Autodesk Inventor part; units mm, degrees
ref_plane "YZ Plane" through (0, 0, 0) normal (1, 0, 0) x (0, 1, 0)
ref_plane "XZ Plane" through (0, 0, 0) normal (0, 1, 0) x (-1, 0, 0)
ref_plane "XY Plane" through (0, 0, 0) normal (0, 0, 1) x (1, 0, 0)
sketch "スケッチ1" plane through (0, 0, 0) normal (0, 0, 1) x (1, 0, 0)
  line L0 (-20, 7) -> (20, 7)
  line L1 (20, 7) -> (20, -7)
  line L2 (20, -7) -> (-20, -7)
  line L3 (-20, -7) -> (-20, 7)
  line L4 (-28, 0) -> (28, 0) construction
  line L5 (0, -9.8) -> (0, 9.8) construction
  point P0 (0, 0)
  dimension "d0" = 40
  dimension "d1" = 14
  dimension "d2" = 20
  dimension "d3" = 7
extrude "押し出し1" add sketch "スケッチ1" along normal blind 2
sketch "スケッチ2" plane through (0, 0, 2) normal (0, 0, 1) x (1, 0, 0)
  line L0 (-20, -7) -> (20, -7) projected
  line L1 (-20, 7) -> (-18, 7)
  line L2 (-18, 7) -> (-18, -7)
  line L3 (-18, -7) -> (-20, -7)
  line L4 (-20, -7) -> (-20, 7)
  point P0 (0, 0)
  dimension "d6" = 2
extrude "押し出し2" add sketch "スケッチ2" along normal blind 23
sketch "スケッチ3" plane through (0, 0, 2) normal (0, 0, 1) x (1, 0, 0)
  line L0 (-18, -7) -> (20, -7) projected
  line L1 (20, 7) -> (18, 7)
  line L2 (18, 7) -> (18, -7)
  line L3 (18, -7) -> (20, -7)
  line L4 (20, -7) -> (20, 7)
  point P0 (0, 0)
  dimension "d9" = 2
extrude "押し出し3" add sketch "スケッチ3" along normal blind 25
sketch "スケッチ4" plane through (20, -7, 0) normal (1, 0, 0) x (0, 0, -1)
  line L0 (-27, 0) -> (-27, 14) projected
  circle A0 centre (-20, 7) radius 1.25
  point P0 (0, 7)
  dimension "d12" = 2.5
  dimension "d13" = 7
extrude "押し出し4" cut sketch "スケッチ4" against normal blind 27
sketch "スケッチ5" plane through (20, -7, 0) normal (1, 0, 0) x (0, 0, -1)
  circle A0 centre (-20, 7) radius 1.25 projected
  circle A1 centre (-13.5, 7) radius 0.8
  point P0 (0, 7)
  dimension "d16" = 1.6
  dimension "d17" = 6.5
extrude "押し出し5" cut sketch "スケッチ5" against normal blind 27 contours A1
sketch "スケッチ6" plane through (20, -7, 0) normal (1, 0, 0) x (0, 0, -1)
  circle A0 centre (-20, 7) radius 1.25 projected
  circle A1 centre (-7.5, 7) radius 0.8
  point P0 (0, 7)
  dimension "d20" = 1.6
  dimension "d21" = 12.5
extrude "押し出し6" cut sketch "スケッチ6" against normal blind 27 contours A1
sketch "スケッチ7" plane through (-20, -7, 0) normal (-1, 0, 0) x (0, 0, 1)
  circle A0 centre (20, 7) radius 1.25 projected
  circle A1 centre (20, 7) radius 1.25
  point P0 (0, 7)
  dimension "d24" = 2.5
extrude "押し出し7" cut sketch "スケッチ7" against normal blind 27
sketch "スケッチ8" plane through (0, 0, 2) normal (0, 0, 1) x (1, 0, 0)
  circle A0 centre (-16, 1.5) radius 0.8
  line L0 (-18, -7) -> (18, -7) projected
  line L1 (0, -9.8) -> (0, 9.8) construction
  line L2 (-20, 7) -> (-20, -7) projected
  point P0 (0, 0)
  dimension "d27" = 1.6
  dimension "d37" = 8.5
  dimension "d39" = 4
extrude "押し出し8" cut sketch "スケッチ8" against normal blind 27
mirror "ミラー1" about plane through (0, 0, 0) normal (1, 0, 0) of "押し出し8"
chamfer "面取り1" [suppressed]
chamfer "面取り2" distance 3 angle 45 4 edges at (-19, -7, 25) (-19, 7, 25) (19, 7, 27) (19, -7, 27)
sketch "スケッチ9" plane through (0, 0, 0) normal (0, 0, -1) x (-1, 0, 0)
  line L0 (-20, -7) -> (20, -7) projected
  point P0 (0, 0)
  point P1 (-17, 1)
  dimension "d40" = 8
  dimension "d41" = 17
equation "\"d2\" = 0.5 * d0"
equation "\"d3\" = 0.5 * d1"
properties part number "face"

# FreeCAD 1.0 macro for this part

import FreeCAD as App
import Part
import Sketcher
from FreeCAD import Vector


def edges_at(feature, points):
    """Names of the edges that pass closest to the given points."""
    edges = feature.Shape.Edges
    near = lambda p: min(range(len(edges)), key=lambda i: edges[i].distToShape(Part.Vertex(*p))[0])
    return sorted({f"Edge{near(p) + 1}" for p in points})

doc = App.newDocument("Part")
body = doc.addObject("PartDesign::Body", "Body")

# Sketch on XY plane
sketch1 = body.newObject("Sketcher::SketchObject", "Sketch")
sketch1.AttachmentSupport = (doc.getObject("XY_Plane"), [""])
sketch1.MapMode = "FlatFace"
sketch1.addGeometry([
    Part.LineSegment(Vector(20, 7, 0), Vector(-20, 7, 0)),
    Part.LineSegment(Vector(-20, 7, 0), Vector(-20, -7, 0)),
    Part.LineSegment(Vector(-20, -7, 0), Vector(20, -7, 0)),
    Part.LineSegment(Vector(20, -7, 0), Vector(20, 7, 0)),
], False)
sketch1.addConstraint([
    Sketcher.Constraint("Coincident", 0, 2, 1, 1),
    Sketcher.Constraint("Coincident", 1, 2, 2, 1),
    Sketcher.Constraint("Coincident", 2, 2, 3, 1),
    Sketcher.Constraint("Coincident", 3, 2, 0, 1),
    Sketcher.Constraint("Horizontal", 0),
    Sketcher.Constraint("Vertical", 1),
    Sketcher.Constraint("Horizontal", 2),
    Sketcher.Constraint("Vertical", 3),
    Sketcher.Constraint("Symmetric", 0, 2, 2, 2, -1, 1),
    Sketcher.Constraint("DistanceX", 0, 2, 0, 1, 40.0),
    Sketcher.Constraint("DistanceY", 1, 2, 1, 1, 14.0),
])
pad1 = body.newObject("PartDesign::Pad", "Pad")
pad1.Profile = sketch1
pad1.Length = 2

# Sketch on XY plane
sketch2 = body.newObject("Sketcher::SketchObject", "Sketch001")
sketch2.AttachmentSupport = (doc.getObject("XY_Plane"), [""])
sketch2.MapMode = "FlatFace"
sketch2.AttachmentOffset = App.Placement(Vector(0, 0, 2), App.Rotation())
sketch2.addGeometry([
    Part.LineSegment(Vector(-20, 7, 0), Vector(-20, -7, 0)),
    Part.LineSegment(Vector(-20, -7, 0), Vector(-18, -7, 0)),
    Part.LineSegment(Vector(-18, -7, 0), Vector(-18, 7, 0)),
    Part.LineSegment(Vector(-18, 7, 0), Vector(-20, 7, 0)),
], False)
sketch2.addConstraint([
    Sketcher.Constraint("Coincident", 0, 2, 1, 1),
    Sketcher.Constraint("Coincident", 1, 2, 2, 1),
    Sketcher.Constraint("Coincident", 2, 2, 3, 1),
    Sketcher.Constraint("Coincident", 3, 2, 0, 1),
    Sketcher.Constraint("Vertical", 0),
    Sketcher.Constraint("Horizontal", 1),
    Sketcher.Constraint("Vertical", 2),
    Sketcher.Constraint("Horizontal", 3),
    Sketcher.Constraint("DistanceX", 1, 1, 1, 2, 2.0),
    Sketcher.Constraint("DistanceY", 0, 2, 0, 1, 14.0),
    Sketcher.Constraint("DistanceX", 0, 2, -1, 1, 20.0),
    Sketcher.Constraint("DistanceY", 0, 2, -1, 1, 7.0),
])
pad2 = body.newObject("PartDesign::Pad", "Pad001")
pad2.Profile = sketch2
pad2.Length = 23

# Sketch on XY plane
sketch3 = body.newObject("Sketcher::SketchObject", "Sketch002")
sketch3.AttachmentSupport = (doc.getObject("XY_Plane"), [""])
sketch3.MapMode = "FlatFace"
sketch3.AttachmentOffset = App.Placement(Vector(0, 0, 2), App.Rotation())
sketch3.addGeometry([
    Part.LineSegment(Vector(18, 7, 0), Vector(18, -7, 0)),
    Part.LineSegment(Vector(18, -7, 0), Vector(20, -7, 0)),
    Part.LineSegment(Vector(20, -7, 0), Vector(20, 7, 0)),
    Part.LineSegment(Vector(20, 7, 0), Vector(18, 7, 0)),
], False)
sketch3.addConstraint([
    Sketcher.Constraint("Coincident", 0, 2, 1, 1),
    Sketcher.Constraint("Coincident", 1, 2, 2, 1),
    Sketcher.Constraint("Coincident", 2, 2, 3, 1),
    Sketcher.Constraint("Coincident", 3, 2, 0, 1),
    Sketcher.Constraint("Vertical", 0),
    Sketcher.Constraint("Horizontal", 1),
    Sketcher.Constraint("Vertical", 2),
    Sketcher.Constraint("Horizontal", 3),
    Sketcher.Constraint("DistanceX", 1, 1, 1, 2, 2.0),
    Sketcher.Constraint("DistanceY", 0, 2, 0, 1, 14.0),
    Sketcher.Constraint("DistanceX", -1, 1, 0, 2, 18.0),
    Sketcher.Constraint("DistanceY", 0, 2, -1, 1, 7.0),
])
pad3 = body.newObject("PartDesign::Pad", "Pad002")
pad3.Profile = sketch3
pad3.Length = 25

# Sketch on YZ plane
sketch4 = body.newObject("Sketcher::SketchObject", "Sketch003")
sketch4.AttachmentSupport = (doc.getObject("YZ_Plane"), [""])
sketch4.MapMode = "FlatFace"
sketch4.AttachmentOffset = App.Placement(Vector(0, 0, 20), App.Rotation())
sketch4.addGeometry(Part.Circle(Vector(0, 20, 0), Vector(0, 0, 1), 1.2), False)
sketch4.addConstraint([
    Sketcher.Constraint("PointOnObject", 0, 3, -2),
    Sketcher.Constraint("Diameter", 0, 2.5),
    Sketcher.Constraint("DistanceY", -1, 1, 0, 3, 20.0),
])
pocket1 = body.newObject("PartDesign::Pocket", "Pocket")
pocket1.Profile = sketch4
pocket1.Length = 27

# Sketch on YZ plane
sketch5 = body.newObject("Sketcher::SketchObject", "Sketch004")
sketch5.AttachmentSupport = (doc.getObject("YZ_Plane"), [""])
sketch5.MapMode = "FlatFace"
sketch5.AttachmentOffset = App.Placement(Vector(0, 0, 20), App.Rotation())
sketch5.addGeometry(Part.Circle(Vector(0, 13.5, 0), Vector(0, 0, 1), 0.8), False)
sketch5.addConstraint([
    Sketcher.Constraint("PointOnObject", 0, 3, -2),
    Sketcher.Constraint("Diameter", 0, 1.6),
    Sketcher.Constraint("DistanceY", -1, 1, 0, 3, 13.5),
])
pocket2 = body.newObject("PartDesign::Pocket", "Pocket001")
pocket2.Profile = sketch5
pocket2.Length = 27

# Sketch on YZ plane
sketch6 = body.newObject("Sketcher::SketchObject", "Sketch005")
sketch6.AttachmentSupport = (doc.getObject("YZ_Plane"), [""])
sketch6.MapMode = "FlatFace"
sketch6.AttachmentOffset = App.Placement(Vector(0, 0, 20), App.Rotation())
sketch6.addGeometry(Part.Circle(Vector(0, 7.5, 0), Vector(0, 0, 1), 0.8), False)
sketch6.addConstraint([
    Sketcher.Constraint("PointOnObject", 0, 3, -2),
    Sketcher.Constraint("Diameter", 0, 1.6),
    Sketcher.Constraint("DistanceY", -1, 1, 0, 3, 7.5),
])
pocket3 = body.newObject("PartDesign::Pocket", "Pocket002")
pocket3.Profile = sketch6
pocket3.Length = 27

# Sketch on YZ plane
sketch7 = body.newObject("Sketcher::SketchObject", "Sketch006")
sketch7.AttachmentSupport = (doc.getObject("YZ_Plane"), [""])
sketch7.MapMode = "FlatFace"
sketch7.AttachmentOffset = App.Placement(Vector(0, 0, -20), App.Rotation())
sketch7.addGeometry(Part.Circle(Vector(0, 20, 0), Vector(0, 0, 1), 1.2), False)
sketch7.addConstraint([
    Sketcher.Constraint("PointOnObject", 0, 3, -2),
    Sketcher.Constraint("Diameter", 0, 2.5),
    Sketcher.Constraint("DistanceY", -1, 1, 0, 3, 20.0),
])
pocket4 = body.newObject("PartDesign::Pocket", "Pocket003")
pocket4.Profile = sketch7
pocket4.Length = 27
pocket4.Reversed = True

# Sketch on XY plane
sketch8 = body.newObject("Sketcher::SketchObject", "Sketch007")
sketch8.AttachmentSupport = (doc.getObject("XY_Plane"), [""])
sketch8.MapMode = "FlatFace"
sketch8.AttachmentOffset = App.Placement(Vector(0, 0, 2), App.Rotation())
sketch8.addGeometry(Part.Circle(Vector(-16, 1.5, 0), Vector(0, 0, 1), 0.8), False)
sketch8.addConstraint([
    Sketcher.Constraint("Diameter", 0, 1.6),
    Sketcher.Constraint("DistanceX", 0, 3, -1, 1, 16.0),
    Sketcher.Constraint("DistanceY", -1, 1, 0, 3, 1.5),
])
pocket5 = body.newObject("PartDesign::Pocket", "Pocket004")
pocket5.Profile = sketch8
pocket5.Length = 27
doc.recompute()

mirrored = body.newObject("PartDesign::Mirrored", "Mirrored")
mirrored.Originals = [pocket5]
mirrored.MirrorPlane = (doc.getObject("YZ_Plane"), [""])
body.Tip = mirrored
doc.recompute()

chamfer = body.newObject("PartDesign::Chamfer", "Chamfer")
chamfer.Base = (mirrored, edges_at(mirrored, [
    (-19, -7, 25),
    (-19, 7, 25),
    (19, 7, 27),
    (19, -7, 27),
]))
chamfer.Size = 3

doc.recompute()
